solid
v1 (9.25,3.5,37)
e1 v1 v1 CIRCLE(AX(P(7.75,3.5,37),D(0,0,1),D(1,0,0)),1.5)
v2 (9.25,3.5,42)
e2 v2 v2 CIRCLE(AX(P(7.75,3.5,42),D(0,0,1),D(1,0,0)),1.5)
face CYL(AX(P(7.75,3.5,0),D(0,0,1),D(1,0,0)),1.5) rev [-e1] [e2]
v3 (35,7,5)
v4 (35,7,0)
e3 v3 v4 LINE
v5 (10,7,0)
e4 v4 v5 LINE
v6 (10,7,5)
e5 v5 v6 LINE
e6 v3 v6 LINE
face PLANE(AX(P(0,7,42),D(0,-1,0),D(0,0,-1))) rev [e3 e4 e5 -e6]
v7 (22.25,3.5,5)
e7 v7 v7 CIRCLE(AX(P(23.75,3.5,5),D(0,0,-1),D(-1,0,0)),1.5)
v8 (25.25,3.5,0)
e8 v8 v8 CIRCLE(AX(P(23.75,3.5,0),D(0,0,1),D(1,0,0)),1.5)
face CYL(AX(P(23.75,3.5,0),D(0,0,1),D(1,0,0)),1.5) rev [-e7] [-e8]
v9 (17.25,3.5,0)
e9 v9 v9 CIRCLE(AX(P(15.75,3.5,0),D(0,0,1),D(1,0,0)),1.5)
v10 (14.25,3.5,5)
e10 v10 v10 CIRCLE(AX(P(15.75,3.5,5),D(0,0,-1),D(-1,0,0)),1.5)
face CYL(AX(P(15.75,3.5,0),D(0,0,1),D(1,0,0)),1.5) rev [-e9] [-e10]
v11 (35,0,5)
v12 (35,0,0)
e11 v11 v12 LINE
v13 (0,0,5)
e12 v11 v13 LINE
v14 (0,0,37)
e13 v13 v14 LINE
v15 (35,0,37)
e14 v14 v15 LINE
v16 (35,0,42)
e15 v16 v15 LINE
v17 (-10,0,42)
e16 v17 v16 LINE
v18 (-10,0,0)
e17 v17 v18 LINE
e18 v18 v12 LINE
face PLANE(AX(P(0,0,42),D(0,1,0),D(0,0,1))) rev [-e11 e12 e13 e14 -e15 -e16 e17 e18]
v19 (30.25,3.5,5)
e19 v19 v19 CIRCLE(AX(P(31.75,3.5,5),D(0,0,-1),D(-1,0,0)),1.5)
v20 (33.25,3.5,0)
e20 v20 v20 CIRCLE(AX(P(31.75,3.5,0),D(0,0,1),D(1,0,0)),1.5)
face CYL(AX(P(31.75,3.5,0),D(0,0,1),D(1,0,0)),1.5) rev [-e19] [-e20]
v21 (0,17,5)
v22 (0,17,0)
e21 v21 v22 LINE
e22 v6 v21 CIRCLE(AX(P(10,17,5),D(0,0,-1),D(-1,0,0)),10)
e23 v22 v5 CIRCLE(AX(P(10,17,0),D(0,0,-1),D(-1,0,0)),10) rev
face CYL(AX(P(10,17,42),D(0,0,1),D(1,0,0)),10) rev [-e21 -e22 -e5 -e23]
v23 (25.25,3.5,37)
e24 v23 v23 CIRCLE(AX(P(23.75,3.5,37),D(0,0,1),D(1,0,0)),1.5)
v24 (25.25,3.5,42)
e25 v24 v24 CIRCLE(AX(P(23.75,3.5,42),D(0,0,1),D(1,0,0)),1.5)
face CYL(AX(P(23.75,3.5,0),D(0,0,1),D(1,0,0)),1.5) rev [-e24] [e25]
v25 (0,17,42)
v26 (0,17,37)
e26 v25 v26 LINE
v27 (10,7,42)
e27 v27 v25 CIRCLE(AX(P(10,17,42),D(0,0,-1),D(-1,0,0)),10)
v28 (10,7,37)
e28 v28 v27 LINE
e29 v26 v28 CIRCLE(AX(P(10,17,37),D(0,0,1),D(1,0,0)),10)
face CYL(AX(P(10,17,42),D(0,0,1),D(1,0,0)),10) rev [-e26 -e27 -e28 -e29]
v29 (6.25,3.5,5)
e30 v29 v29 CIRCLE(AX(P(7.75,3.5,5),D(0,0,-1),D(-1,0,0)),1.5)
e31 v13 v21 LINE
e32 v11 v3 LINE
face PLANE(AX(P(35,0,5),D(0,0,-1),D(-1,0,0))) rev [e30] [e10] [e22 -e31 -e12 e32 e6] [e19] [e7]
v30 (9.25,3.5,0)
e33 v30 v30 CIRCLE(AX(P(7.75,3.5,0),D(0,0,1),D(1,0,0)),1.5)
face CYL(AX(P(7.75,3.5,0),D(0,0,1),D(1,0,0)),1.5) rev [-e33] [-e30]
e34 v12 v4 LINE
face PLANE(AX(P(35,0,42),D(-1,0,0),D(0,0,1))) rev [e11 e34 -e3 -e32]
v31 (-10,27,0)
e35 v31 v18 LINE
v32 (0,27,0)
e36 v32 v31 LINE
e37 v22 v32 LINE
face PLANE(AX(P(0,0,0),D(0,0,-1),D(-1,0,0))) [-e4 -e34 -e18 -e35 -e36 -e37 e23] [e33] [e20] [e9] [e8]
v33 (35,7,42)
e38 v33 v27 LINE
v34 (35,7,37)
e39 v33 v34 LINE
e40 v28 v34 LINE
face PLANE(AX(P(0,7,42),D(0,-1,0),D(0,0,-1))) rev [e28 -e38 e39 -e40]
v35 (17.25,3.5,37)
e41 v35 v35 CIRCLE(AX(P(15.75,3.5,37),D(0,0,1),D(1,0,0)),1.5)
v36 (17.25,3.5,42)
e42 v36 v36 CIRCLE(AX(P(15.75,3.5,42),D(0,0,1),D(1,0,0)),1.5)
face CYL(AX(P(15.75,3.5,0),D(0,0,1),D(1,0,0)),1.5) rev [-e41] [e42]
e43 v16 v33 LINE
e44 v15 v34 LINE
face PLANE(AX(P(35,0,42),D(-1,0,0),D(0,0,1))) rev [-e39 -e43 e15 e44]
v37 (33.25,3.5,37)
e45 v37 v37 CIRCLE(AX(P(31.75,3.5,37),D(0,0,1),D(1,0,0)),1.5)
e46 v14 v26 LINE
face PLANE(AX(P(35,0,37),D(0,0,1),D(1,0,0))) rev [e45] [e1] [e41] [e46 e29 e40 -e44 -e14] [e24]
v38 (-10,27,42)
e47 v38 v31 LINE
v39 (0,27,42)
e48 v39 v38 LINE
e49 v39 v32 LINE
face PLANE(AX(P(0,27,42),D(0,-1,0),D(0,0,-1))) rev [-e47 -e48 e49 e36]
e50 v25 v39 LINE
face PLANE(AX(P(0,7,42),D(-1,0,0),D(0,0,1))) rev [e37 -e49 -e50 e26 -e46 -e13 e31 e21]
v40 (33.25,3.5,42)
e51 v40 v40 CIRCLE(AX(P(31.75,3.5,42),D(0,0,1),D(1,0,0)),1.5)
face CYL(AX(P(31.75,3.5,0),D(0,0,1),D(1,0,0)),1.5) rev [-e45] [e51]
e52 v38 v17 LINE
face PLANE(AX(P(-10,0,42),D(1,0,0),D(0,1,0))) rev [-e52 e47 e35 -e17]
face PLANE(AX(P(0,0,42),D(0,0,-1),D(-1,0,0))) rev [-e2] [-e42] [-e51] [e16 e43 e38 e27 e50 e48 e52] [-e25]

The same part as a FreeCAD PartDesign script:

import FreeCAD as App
import Part
import Sketcher
from FreeCAD import Vector
Q = App.Units.Quantity


def edges_at(feature, points):
    """Names of the edges that pass closest to the given points."""
    edges = feature.Shape.Edges
    near = lambda p: min(range(len(edges)), key=lambda i: edges[i].distToShape(Part.Vertex(*p))[0])
    return sorted({f"Edge{near(p) + 1}" for p in points})

doc = App.newDocument("Part")
body = doc.addObject("PartDesign::Body", "Body")

# Sketch on XY plane
sketch1 = body.newObject("Sketcher::SketchObject", "Sketch")
sketch1.AttachmentSupport = (doc.getObject("XY_Plane"), [""])
sketch1.MapMode = "FlatFace"
sketch1.addGeometry(Part.LineSegment(Vector(0, 7, 0), Vector(0, 27, 0)), False)
sketch1.addGeometry(Part.LineSegment(Vector(0, 27, 0), Vector(-10, 27, 0)), False)
sketch1.addGeometry(Part.LineSegment(Vector(-10, 27, 0), Vector(-10, 0, 0)), False)
sketch1.addGeometry(Part.LineSegment(Vector(-10, 0, 0), Vector(35, 0, 0)), False)
sketch1.addGeometry(Part.LineSegment(Vector(35, 0, 0), Vector(35, 7, 0)), False)
sketch1.addGeometry(Part.LineSegment(Vector(35, 7, 0), Vector(0, 7, 0)), False)
sketch1.addConstraint(Sketcher.Constraint("Coincident", 0, 2, 1, 1))
sketch1.addConstraint(Sketcher.Constraint("Coincident", 1, 2, 2, 1))
sketch1.addConstraint(Sketcher.Constraint("Coincident", 2, 2, 3, 1))
sketch1.addConstraint(Sketcher.Constraint("Coincident", 3, 2, 4, 1))
sketch1.addConstraint(Sketcher.Constraint("Coincident", 4, 2, 5, 1))
sketch1.addConstraint(Sketcher.Constraint("Coincident", 5, 2, 0, 1))
sketch1.addConstraint(Sketcher.Constraint("Vertical", 0))
sketch1.addConstraint(Sketcher.Constraint("Horizontal", 1))
sketch1.addConstraint(Sketcher.Constraint("Vertical", 2))
sketch1.addConstraint(Sketcher.Constraint("Horizontal", 3))
sketch1.addConstraint(Sketcher.Constraint("Vertical", 4))
sketch1.addConstraint(Sketcher.Constraint("Horizontal", 5))
sketch1.addConstraint(Sketcher.Constraint("PointOnObject", 0, 2, -2))
sketch1.addConstraint(Sketcher.Constraint("PointOnObject", 2, 2, -1))
sketch1.addConstraint(Sketcher.Constraint("DistanceX", 1, 2, 1, 1, Q("10 mm")))
sketch1.addConstraint(Sketcher.Constraint("DistanceX", 3, 1, 3, 2, Q("45 mm")))
sketch1.addConstraint(Sketcher.Constraint("DistanceY", 0, 1, 0, 2, Q("20 mm")))
sketch1.addConstraint(Sketcher.Constraint("DistanceY", 2, 2, 2, 1, Q("27 mm")))
pad1 = body.newObject("PartDesign::Pad", "Pad")
pad1.Profile = sketch1
pad1.Length = 42

# Sketch on XZ plane
sketch2 = body.newObject("Sketcher::SketchObject", "Sketch001")
sketch2.AttachmentSupport = (doc.getObject("XZ_Plane"), [""])
sketch2.MapMode = "FlatFace"
sketch2.AttachmentOffset = App.Placement(Vector(0, 0, -7), App.Rotation())
sketch2.addGeometry(Part.LineSegment(Vector(0, 5, 0), Vector(0, 37, 0)), False)
sketch2.addGeometry(Part.LineSegment(Vector(0, 37, 0), Vector(35, 37, 0)), False)
sketch2.addGeometry(Part.LineSegment(Vector(35, 37, 0), Vector(35, 5, 0)), False)
sketch2.addGeometry(Part.LineSegment(Vector(35, 5, 0), Vector(0, 5, 0)), False)
sketch2.addConstraint(Sketcher.Constraint("Coincident", 0, 2, 1, 1))
sketch2.addConstraint(Sketcher.Constraint("Coincident", 1, 2, 2, 1))
sketch2.addConstraint(Sketcher.Constraint("Coincident", 2, 2, 3, 1))
sketch2.addConstraint(Sketcher.Constraint("Coincident", 3, 2, 0, 1))
sketch2.addConstraint(Sketcher.Constraint("Vertical", 0))
sketch2.addConstraint(Sketcher.Constraint("Horizontal", 1))
sketch2.addConstraint(Sketcher.Constraint("Vertical", 2))
sketch2.addConstraint(Sketcher.Constraint("Horizontal", 3))
sketch2.addConstraint(Sketcher.Constraint("PointOnObject", 0, 2, -2))
sketch2.addConstraint(Sketcher.Constraint("DistanceX", 1, 1, 1, 2, Q("35 mm")))
sketch2.addConstraint(Sketcher.Constraint("DistanceY", 0, 1, 0, 2, Q("32 mm")))
sketch2.addConstraint(Sketcher.Constraint("DistanceY", -1, 1, 0, 2, Q("37 mm")))
pocket1 = body.newObject("PartDesign::Pocket", "Pocket")
pocket1.Profile = sketch2
pocket1.Type = "ThroughAll"
pocket1.Reversed = True

# Sketch on XY plane
sketch3 = body.newObject("Sketcher::SketchObject", "Sketch002")
sketch3.AttachmentSupport = (doc.getObject("XY_Plane"), [""])
sketch3.MapMode = "FlatFace"
sketch3.AttachmentOffset = App.Placement(Vector(0, 0, 42), App.Rotation())
sketch3.addGeometry(Part.Circle(Vector(31.8, 3.5, 0), Vector(0, 0, 1), 1.5), False)
sketch3.addGeometry(Part.Circle(Vector(23.8, 3.5, 0), Vector(0, 0, 1), 1.5), False)
sketch3.addGeometry(Part.Circle(Vector(15.8, 3.5, 0), Vector(0, 0, 1), 1.5), False)
sketch3.addGeometry(Part.Circle(Vector(7.8, 3.5, 0), Vector(0, 0, 1), 1.5), False)
sketch3.addConstraint(Sketcher.Constraint("Equal", 0, 1))
sketch3.addConstraint(Sketcher.Constraint("Equal", 1, 2))
sketch3.addConstraint(Sketcher.Constraint("Equal", 2, 3))
sketch3.addConstraint(Sketcher.Constraint("Horizontal", 0, 3, 1, 3))
sketch3.addConstraint(Sketcher.Constraint("Horizontal", 1, 3, 2, 3))
sketch3.addConstraint(Sketcher.Constraint("Horizontal", 2, 3, 3, 3))
sketch3.addConstraint(Sketcher.Constraint("Diameter", 0, Q("3 mm")))
sketch3.addConstraint(Sketcher.Constraint("DistanceX", 1, 3, 0, 3, Q("8 mm")))
sketch3.addConstraint(Sketcher.Constraint("DistanceX", 2, 3, 1, 3, Q("8 mm")))
sketch3.addConstraint(Sketcher.Constraint("DistanceX", 3, 3, 2, 3, Q("8 mm")))
sketch3.addConstraint(Sketcher.Constraint("DistanceY", -1, 1, 0, 3, Q("3.5 mm")))
sketch3.addConstraint(Sketcher.Constraint("DistanceX", -1, 1, 0, 3, Q("31.75 mm")))
pocket2 = body.newObject("PartDesign::Pocket", "Pocket001")
pocket2.Profile = sketch3
pocket2.Type = "ThroughAll"
doc.recompute()

fillet = body.newObject("PartDesign::Fillet", "Fillet")
fillet.Base = (pocket2, edges_at(pocket2, [(0, 7, 39.5), (0, 7, 2.5)]))
fillet.Radius = 10

doc.recompute()
